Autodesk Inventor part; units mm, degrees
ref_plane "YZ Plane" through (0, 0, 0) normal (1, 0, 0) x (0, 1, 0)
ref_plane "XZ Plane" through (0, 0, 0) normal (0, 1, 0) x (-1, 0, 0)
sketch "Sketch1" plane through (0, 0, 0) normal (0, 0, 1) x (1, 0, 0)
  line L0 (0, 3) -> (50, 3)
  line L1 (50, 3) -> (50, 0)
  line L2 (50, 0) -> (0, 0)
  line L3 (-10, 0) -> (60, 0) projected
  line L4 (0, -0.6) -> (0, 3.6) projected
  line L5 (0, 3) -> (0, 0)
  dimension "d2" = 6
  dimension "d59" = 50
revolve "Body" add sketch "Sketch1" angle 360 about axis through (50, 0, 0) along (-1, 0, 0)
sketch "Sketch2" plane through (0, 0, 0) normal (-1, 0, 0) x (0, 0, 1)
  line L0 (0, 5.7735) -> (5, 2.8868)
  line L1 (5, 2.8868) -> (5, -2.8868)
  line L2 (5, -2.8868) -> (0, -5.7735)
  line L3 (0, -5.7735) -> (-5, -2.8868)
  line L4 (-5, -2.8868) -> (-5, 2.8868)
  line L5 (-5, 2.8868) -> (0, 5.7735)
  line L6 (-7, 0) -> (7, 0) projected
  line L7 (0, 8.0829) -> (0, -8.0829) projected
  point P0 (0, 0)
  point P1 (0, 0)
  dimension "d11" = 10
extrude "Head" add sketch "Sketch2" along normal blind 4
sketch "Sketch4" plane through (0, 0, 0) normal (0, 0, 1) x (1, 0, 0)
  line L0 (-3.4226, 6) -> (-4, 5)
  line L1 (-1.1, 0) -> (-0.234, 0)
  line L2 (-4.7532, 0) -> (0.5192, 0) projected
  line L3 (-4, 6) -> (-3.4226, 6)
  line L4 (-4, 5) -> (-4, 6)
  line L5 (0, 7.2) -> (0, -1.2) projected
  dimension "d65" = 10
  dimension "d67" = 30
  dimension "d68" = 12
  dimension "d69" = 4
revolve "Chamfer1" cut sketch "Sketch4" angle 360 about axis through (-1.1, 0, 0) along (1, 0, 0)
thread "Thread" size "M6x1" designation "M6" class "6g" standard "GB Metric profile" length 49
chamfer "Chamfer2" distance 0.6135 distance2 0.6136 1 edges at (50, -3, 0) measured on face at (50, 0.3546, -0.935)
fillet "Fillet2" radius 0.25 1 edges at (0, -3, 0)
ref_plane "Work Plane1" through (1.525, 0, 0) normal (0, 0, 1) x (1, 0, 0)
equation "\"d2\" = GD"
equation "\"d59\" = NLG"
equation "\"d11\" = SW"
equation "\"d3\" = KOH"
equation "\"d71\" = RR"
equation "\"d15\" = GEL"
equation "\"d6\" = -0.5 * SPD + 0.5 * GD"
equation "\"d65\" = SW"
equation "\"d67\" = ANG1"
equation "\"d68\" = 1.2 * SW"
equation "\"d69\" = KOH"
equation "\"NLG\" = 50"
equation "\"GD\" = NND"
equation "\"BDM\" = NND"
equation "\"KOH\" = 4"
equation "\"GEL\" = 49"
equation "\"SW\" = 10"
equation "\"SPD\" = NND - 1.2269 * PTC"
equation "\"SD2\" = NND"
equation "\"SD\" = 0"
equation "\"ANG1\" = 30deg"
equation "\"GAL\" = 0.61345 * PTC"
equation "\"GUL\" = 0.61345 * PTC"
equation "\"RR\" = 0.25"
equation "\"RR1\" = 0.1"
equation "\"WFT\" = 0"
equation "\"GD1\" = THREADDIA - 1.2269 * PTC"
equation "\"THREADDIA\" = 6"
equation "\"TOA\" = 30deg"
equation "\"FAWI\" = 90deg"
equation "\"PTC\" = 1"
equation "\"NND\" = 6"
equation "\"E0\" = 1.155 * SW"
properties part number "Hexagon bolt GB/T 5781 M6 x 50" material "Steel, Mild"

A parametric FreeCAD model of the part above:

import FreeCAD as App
import Part
import Sketcher
Q = App.Units.Quantity


def edges_at(feature, points):
    """Names of the edges that pass closest to the given points."""
    edges = feature.Shape.Edges
    near = lambda p: min(range(len(edges)), key=lambda i: edges[i].distToShape(Part.Vertex(*p))[0])
    return sorted({f"Edge{near(p) + 1}" for p in points})

doc = App.newDocument("Part")
params = doc.addObject("Spreadsheet::Sheet", "Params")
for row, (alias, value) in enumerate([
    ("sketch1_width", "50 mm"),
    ("sketch1_height", "3 mm"),
    ("revolution_angle", "360 deg"),
    ("pad1_length", "4 mm"),
    ("sketch3_height", "1 mm"),
    ("groove_angle", "360 deg"),
    ("chamfer_size", "0.6135 mm"),
    ("chamfer_size2", "0.6136 mm"),
    ("fillet_radius", "0.25 mm"),
], start=1):
    params.set(f"A{row}", alias)
    params.set(f"B{row}", "=" + value)
    params.setAlias(f"B{row}", alias)

body = doc.addObject("PartDesign::Body", "Body")

# Sketch on XY plane
sketch1 = body.newObject("Sketcher::SketchObject", "Sketch")
sketch1.AttachmentSupport = (doc.getObject("XY_Plane"), [""])
sketch1.MapMode = "FlatFace"
sketch1.addGeometry([
    Part.LineSegment(App.Vector(50, 3, 0), App.Vector(0, 3, 0)),
    Part.LineSegment(App.Vector(0, 3, 0), App.Vector(0, 0, 0)),
    Part.LineSegment(App.Vector(0, 0, 0), App.Vector(50, 0, 0)),
    Part.LineSegment(App.Vector(50, 0, 0), App.Vector(50, 3, 0)),
], False)
sketch1.addConstraint([
    Sketcher.Constraint("Coincident", 0, 2, 1, 1),
    Sketcher.Constraint("Coincident", 1, 2, 2, 1),
    Sketcher.Constraint("Coincident", 2, 2, 3, 1),
    Sketcher.Constraint("Coincident", 3, 2, 0, 1),
    Sketcher.Constraint("Horizontal", 0),
    Sketcher.Constraint("Vertical", 1),
    Sketcher.Constraint("Horizontal", 2),
    Sketcher.Constraint("Vertical", 3),
    Sketcher.Constraint("Coincident", 1, 2, -1, 1),
    Sketcher.Constraint("DistanceX", 0, 2, 0, 1, 50.0),
    Sketcher.Constraint("DistanceY", 1, 2, 1, 1, 3.0),
])
sketch1.setExpression("Constraints[9]", "Params.sketch1_width")
sketch1.setExpression("Constraints[10]", "Params.sketch1_height")
revolution = body.newObject("PartDesign::Revolution", "Revolution")
revolution.Profile = sketch1
revolution.ReferenceAxis = (sketch1, ["H_Axis"])
revolution.setExpression("Angle", "Params.revolution_angle")

# Sketch on YZ plane
sketch2 = body.newObject("Sketcher::SketchObject", "Sketch001")
sketch2.AttachmentSupport = (doc.getObject("YZ_Plane"), [""])
sketch2.MapMode = "FlatFace"
sketch2.addGeometry([
    Part.LineSegment(App.Vector(3, -5, 0), App.Vector(-3, -5, 0)),  # 0
    Part.LineSegment(App.Vector(-3, -5, 0), App.Vector(-6, 0, 0)),  # 1
    Part.LineSegment(App.Vector(-6, 0, 0), App.Vector(-3, 5, 0)),  # 2
    Part.LineSegment(App.Vector(-3, 5, 0), App.Vector(3, 5, 0)),  # 3
    Part.LineSegment(App.Vector(3, 5, 0), App.Vector(6, 0, 0)),  # 4
    Part.LineSegment(App.Vector(6, 0, 0), App.Vector(3, -5, 0)),  # 5
], False)
sketch2.addConstraint([
    Sketcher.Constraint("Coincident", 0, 2, 1, 1),
    Sketcher.Constraint("Coincident", 1, 2, 2, 1),
    Sketcher.Constraint("Coincident", 2, 2, 3, 1),
    Sketcher.Constraint("Coincident", 3, 2, 4, 1),
    Sketcher.Constraint("Coincident", 4, 2, 5, 1),
    Sketcher.Constraint("Coincident", 5, 2, 0, 1),
    Sketcher.Constraint("Horizontal", 0),
    Sketcher.Constraint("Horizontal", 3),
    Sketcher.Constraint("Symmetric", 0, 2, 3, 2, -1, 1),
    Sketcher.Constraint("Symmetric", 1, 2, 4, 2, -1, 1),
    Sketcher.Constraint("PointOnObject", 1, 2, -1),
    Sketcher.Constraint("Parallel", 2, 5),
    Sketcher.Constraint("Vertical", 0, 2, 2, 2),
    Sketcher.Constraint("DistanceY", 0, 2, 2, 2, 10.0),
    Sketcher.Constraint("Angle", 1, Q("119.9996 deg")),
    Sketcher.Constraint("DistanceX", 0, 2, 0, 1, 5.7736),
])
pad1 = body.newObject("PartDesign::Pad", "Pad")
pad1.Profile = sketch2
pad1.setExpression("Length", "Params.pad1_length")
pad1.Reversed = True

# Sketch on XY plane
sketch3 = body.newObject("Sketcher::SketchObject", "Sketch002")
sketch3.AttachmentSupport = (doc.getObject("XY_Plane"), [""])
sketch3.MapMode = "FlatFace"
sketch3.addGeometry([
    Part.LineSegment(App.Vector(-4, 5, 0), App.Vector(-3.4, 6, 0)),
    Part.LineSegment(App.Vector(-3.4, 6, 0), App.Vector(-4, 6, 0)),
    Part.LineSegment(App.Vector(-4, 6, 0), App.Vector(-4, 5, 0)),
], False)
sketch3.addConstraint([
    Sketcher.Constraint("Coincident", 0, 2, 1, 1),
    Sketcher.Constraint("Coincident", 1, 2, 2, 1),
    Sketcher.Constraint("Coincident", 2, 2, 0, 1),
    Sketcher.Constraint("Horizontal", 1),
    Sketcher.Constraint("Vertical", 2),
    Sketcher.Constraint("DistanceX", 1, 2, -1, 1, 4.0),
    Sketcher.Constraint("DistanceY", 2, 2, 2, 1, 1.0),
    Sketcher.Constraint("DistanceY", -1, 1, 0, 2, 6.0),
    Sketcher.Constraint("DistanceX", 1, 2, 1, 1, 0.5774),
])
sketch3.setExpression("Constraints[6]", "Params.sketch3_height")
groove = body.newObject("PartDesign::Groove", "Groove")
groove.Profile = sketch3
groove.ReferenceAxis = (sketch3, ["H_Axis"])
groove.setExpression("Angle", "Params.groove_angle")
doc.recompute()

chamfer = body.newObject("PartDesign::Chamfer", "Chamfer")
chamfer.Base = (groove, edges_at(groove, [(50, -3, 0)]))
chamfer.ChamferType = "Two distances"
chamfer.setExpression("Size", "Params.chamfer_size")
chamfer.setExpression("Size2", "Params.chamfer_size2")
doc.recompute()

fillet = body.newObject("PartDesign::Fillet", "Fillet")
fillet.Base = (chamfer, edges_at(chamfer, [(0, -3, 0)]))
fillet.setExpression("Radius", "Params.fillet_radius")

doc.recompute()
